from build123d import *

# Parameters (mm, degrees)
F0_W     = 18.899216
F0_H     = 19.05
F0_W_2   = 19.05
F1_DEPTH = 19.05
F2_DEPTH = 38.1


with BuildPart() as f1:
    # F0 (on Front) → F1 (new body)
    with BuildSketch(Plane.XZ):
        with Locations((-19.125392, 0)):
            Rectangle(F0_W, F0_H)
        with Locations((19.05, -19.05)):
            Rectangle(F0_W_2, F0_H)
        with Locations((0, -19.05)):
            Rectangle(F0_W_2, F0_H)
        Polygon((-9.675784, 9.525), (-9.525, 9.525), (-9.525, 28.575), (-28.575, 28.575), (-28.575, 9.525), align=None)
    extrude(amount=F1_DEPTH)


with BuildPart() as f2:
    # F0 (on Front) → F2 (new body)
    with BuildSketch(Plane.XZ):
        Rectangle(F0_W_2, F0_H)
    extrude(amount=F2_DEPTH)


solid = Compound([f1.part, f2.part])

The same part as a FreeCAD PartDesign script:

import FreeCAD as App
import Part
import Sketcher

V = App.Vector
Q = App.Units.Quantity

doc = App.newDocument("Part")
body = doc.addObject("PartDesign::Body", "Body")
body.AllowCompound = True

# Sketch on XZ plane
sketch1 = body.newObject("Sketcher::SketchObject", "Sketch")
sketch1.AttachmentSupport = (doc.getObject("XZ_Plane"), [""])
sketch1.MapMode = "FlatFace"
sketch1.addGeometry([
    Part.LineSegment(V(-28.57, -9.53, 0), V(-9.68, -9.53, 0)),  # 0
    Part.LineSegment(V(-9.68, -9.53, 0), V(-9.68, 9.53, 0)),  # 1
    Part.LineSegment(V(-9.68, 9.53, 0), V(-9.53, 9.53, 0)),  # 2
    Part.LineSegment(V(-9.53, 9.53, 0), V(-9.53, 28.57, 0)),  # 3
    Part.LineSegment(V(-9.53, 28.57, 0), V(-28.57, 28.57, 0)),  # 4
    Part.LineSegment(V(-28.57, 28.57, 0), V(-28.57, -9.53, 0)),  # 5
    Part.LineSegment(V(28.57, -28.57, 0), V(28.57, -9.53, 0)),  # 6
    Part.LineSegment(V(28.57, -9.53, 0), V(-9.53, -9.53, 0)),  # 7
    Part.LineSegment(V(-9.53, -9.53, 0), V(-9.53, -28.57, 0)),  # 8
    Part.LineSegment(V(-9.53, -28.57, 0), V(28.57, -28.57, 0)),  # 9
], False)
sketch1.addConstraint([
    Sketcher.Constraint("Coincident", 0, 2, 1, 1),
    Sketcher.Constraint("Coincident", 1, 2, 2, 1),
    Sketcher.Constraint("Coincident", 2, 2, 3, 1),
    Sketcher.Constraint("Coincident", 3, 2, 4, 1),
    Sketcher.Constraint("Coincident", 4, 2, 5, 1),
    Sketcher.Constraint("Coincident", 5, 2, 0, 1),
    Sketcher.Constraint("Coincident", 6, 2, 7, 1),
    Sketcher.Constraint("Coincident", 7, 2, 8, 1),
    Sketcher.Constraint("Coincident", 8, 2, 9, 1),
    Sketcher.Constraint("Coincident", 9, 2, 6, 1),
    Sketcher.Constraint("Horizontal", 0),
    Sketcher.Constraint("Vertical", 1),
    Sketcher.Constraint("Horizontal", 2),
    Sketcher.Constraint("Vertical", 3),
    Sketcher.Constraint("Horizontal", 4),
    Sketcher.Constraint("Vertical", 5),
    Sketcher.Constraint("Vertical", 6),
    Sketcher.Constraint("Horizontal", 7),
    Sketcher.Constraint("Vertical", 8),
    Sketcher.Constraint("Horizontal", 9),
    Sketcher.Constraint("Symmetric", 4, 2, 9, 2, -1, 1),
    Sketcher.Constraint("Symmetric", 2, 2, 7, 2, -1),
    Sketcher.Constraint("Horizontal", 5, 2, 6, 2),
    Sketcher.Constraint("Equal", 4, 1),
    Sketcher.Constraint("Equal", 1, 3),
    Sketcher.Constraint("Equal", 9, 5),
    Sketcher.Constraint("DistanceX", 7, 2, 7, 1, Q("1.5 in")),
    Sketcher.Constraint("DistanceX", 0, 1, 0, 2, 18.899216),
])
pad1 = body.newObject("PartDesign::Pad", "Pad")
pad1.Profile = sketch1
pad1.Length = Q("0.75 in")
body2 = doc.addObject("PartDesign::Body", "Body001")

# Sketch on XZ plane
sketch2 = body2.newObject("Sketcher::SketchObject", "Sketch001")
sketch2.AttachmentSupport = (doc.getObject("XZ_Plane001"), [""])
sketch2.MapMode = "FlatFace"
sketch2.addGeometry([
    Part.LineSegment(V(-10, 10, 0), V(-10, -10, 0)),
    Part.LineSegment(V(-10, -10, 0), V(10, -10, 0)),
    Part.LineSegment(V(10, -10, 0), V(10, 10, 0)),
    Part.LineSegment(V(10, 10, 0), V(-10, 10, 0)),
], False)
sketch2.addConstraint([
    Sketcher.Constraint("Coincident", 0, 2, 1, 1),
    Sketcher.Constraint("Coincident", 1, 2, 2, 1),
    Sketcher.Constraint("Coincident", 2, 2, 3, 1),
    Sketcher.Constraint("Coincident", 3, 2, 0, 1),
    Sketcher.Constraint("Vertical", 0),
    Sketcher.Constraint("Horizontal", 1),
    Sketcher.Constraint("Vertical", 2),
    Sketcher.Constraint("Horizontal", 3),
    Sketcher.Constraint("Symmetric", 0, 2, 2, 2, -1, 1),
    Sketcher.Constraint("Equal", 3, 0),
    Sketcher.Constraint("DistanceX", 1, 1, 1, 2, Q("0.75 in")),
])
pad2 = body2.newObject("PartDesign::Pad", "Pad001")
pad2.Profile = sketch2
pad2.Length = Q("1.5 in")

doc.recompute()
